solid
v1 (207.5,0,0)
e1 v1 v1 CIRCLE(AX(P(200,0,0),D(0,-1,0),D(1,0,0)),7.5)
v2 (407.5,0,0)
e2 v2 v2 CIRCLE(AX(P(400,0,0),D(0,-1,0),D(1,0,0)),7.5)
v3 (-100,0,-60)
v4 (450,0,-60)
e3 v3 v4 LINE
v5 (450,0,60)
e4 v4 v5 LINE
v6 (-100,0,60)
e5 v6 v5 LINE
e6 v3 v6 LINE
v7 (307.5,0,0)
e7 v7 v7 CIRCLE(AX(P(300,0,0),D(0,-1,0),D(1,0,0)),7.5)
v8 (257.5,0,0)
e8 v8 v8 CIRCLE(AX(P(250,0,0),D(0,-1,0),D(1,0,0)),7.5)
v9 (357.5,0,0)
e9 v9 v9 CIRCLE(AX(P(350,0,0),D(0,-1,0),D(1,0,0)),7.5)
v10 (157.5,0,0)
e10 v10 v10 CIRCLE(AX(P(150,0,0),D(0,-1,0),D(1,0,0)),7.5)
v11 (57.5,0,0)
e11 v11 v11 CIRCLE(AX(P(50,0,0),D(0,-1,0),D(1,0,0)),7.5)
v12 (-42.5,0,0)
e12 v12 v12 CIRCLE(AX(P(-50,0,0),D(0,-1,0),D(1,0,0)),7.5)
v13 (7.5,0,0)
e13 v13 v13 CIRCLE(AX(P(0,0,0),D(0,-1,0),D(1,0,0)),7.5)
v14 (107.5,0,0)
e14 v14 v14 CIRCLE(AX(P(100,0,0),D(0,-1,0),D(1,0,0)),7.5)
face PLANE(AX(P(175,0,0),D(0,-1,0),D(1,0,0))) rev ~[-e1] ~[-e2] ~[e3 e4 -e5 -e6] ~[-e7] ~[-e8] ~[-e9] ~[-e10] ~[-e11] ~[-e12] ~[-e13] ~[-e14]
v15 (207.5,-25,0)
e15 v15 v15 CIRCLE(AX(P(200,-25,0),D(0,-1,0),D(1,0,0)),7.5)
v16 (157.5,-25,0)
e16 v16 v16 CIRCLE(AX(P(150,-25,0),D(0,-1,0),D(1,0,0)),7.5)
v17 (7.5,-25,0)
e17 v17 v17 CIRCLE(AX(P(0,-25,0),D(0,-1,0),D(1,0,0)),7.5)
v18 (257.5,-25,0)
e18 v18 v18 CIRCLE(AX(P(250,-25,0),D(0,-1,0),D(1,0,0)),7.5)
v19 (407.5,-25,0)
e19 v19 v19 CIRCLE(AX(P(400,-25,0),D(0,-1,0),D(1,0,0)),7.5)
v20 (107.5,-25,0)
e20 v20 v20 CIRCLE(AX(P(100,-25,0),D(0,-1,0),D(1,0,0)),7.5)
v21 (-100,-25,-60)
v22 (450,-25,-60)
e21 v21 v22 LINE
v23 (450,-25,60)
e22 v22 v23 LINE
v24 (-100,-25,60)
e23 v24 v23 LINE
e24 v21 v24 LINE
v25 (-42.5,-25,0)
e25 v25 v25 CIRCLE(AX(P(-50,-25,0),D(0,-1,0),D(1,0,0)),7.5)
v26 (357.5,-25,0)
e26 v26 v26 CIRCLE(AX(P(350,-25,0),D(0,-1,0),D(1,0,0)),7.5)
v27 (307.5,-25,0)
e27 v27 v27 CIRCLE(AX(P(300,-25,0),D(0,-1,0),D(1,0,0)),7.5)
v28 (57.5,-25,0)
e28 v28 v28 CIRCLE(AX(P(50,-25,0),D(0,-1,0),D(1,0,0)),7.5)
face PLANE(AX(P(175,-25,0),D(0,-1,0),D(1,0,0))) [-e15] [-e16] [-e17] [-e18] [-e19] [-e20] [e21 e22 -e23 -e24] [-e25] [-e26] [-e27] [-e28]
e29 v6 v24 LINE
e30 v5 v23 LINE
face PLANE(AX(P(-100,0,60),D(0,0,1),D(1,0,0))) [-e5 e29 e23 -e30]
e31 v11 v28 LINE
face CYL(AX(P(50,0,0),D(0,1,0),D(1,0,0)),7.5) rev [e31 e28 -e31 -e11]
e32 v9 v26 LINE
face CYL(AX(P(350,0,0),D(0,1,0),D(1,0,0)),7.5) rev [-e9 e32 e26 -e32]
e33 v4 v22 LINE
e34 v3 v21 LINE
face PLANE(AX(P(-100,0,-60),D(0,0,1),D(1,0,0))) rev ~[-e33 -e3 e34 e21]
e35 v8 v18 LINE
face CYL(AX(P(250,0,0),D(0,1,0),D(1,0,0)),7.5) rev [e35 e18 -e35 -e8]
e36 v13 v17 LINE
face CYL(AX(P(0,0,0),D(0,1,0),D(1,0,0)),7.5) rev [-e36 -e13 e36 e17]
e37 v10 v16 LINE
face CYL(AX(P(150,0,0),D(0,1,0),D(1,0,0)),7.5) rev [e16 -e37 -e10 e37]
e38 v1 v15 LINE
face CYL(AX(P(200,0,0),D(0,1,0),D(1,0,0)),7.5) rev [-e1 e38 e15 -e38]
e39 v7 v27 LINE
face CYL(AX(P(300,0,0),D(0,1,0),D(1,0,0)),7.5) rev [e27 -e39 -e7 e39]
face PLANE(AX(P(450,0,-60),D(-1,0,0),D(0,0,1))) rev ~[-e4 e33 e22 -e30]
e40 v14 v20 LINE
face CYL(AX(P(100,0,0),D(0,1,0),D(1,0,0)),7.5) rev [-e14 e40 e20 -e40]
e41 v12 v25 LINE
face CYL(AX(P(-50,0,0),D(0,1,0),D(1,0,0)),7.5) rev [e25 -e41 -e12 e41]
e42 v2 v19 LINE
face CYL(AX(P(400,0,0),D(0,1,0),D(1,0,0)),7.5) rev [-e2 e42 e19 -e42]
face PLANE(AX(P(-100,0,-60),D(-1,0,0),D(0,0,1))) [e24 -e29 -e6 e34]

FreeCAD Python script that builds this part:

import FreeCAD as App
import Part
import Sketcher
Q = App.Units.Quantity


def add_polygon(sketch, points):
    """Adds a closed chain of lines whose ends are joined by coincident constraints."""
    first, n = sketch.GeometryCount, len(points)
    for a, b in zip(points, points[1:] + points[:1]):
        sketch.addGeometry(Part.LineSegment(App.Vector(*a, 0), App.Vector(*b, 0)), False)
    for i in range(n):
        sketch.addConstraint(Sketcher.Constraint("Coincident", first + i, 2, first + (i + 1) % n, 1))

doc = App.newDocument("Part")
body = doc.addObject("PartDesign::Body", "Body")

sketch1 = body.newObject("Sketcher::SketchObject", "Sketch")
sketch1.AttachmentSupport = (doc.getObject("XZ_Plane"), [""])
sketch1.MapMode = "FlatFace"
add_polygon(sketch1, [(-100, 60), (-100, -60), (450, -60), (450, 60)])
sketch1.addGeometry(Part.Circle(App.Vector(-50, 0, 0), App.Vector(0, 0, 1), 8), False)
sketch1.addGeometry(Part.Circle(App.Vector(0, 0, 0), App.Vector(0, 0, 1), 8), False)
sketch1.addGeometry(Part.Circle(App.Vector(50, 0, 0), App.Vector(0, 0, 1), 8), False)
sketch1.addGeometry(Part.Circle(App.Vector(100, 0, 0), App.Vector(0, 0, 1), 8), False)
sketch1.addGeometry(Part.Circle(App.Vector(150, 0, 0), App.Vector(0, 0, 1), 8), False)
sketch1.addGeometry(Part.Circle(App.Vector(200, 0, 0), App.Vector(0, 0, 1), 8), False)
sketch1.addGeometry(Part.Circle(App.Vector(250, 0, 0), App.Vector(0, 0, 1), 8), False)
sketch1.addGeometry(Part.Circle(App.Vector(300, 0, 0), App.Vector(0, 0, 1), 8), False)
sketch1.addGeometry(Part.Circle(App.Vector(350, 0, 0), App.Vector(0, 0, 1), 8), False)
sketch1.addGeometry(Part.Circle(App.Vector(400, 0, 0), App.Vector(0, 0, 1), 8), False)
sketch1.addConstraint([
    Sketcher.Constraint("Vertical", 0),
    Sketcher.Constraint("Horizontal", 1),
    Sketcher.Constraint("Vertical", 2),
    Sketcher.Constraint("Horizontal", 3),
    Sketcher.Constraint("Coincident", 5, 3, -1, 1),
    Sketcher.Constraint("Equal", 4, 5),
    Sketcher.Constraint("Equal", 5, 6),
    Sketcher.Constraint("Equal", 6, 7),
    Sketcher.Constraint("Equal", 7, 8),
    Sketcher.Constraint("Equal", 8, 9),
    Sketcher.Constraint("Equal", 9, 10),
    Sketcher.Constraint("Equal", 10, 11),
    Sketcher.Constraint("Equal", 11, 12),
    Sketcher.Constraint("Equal", 12, 13),
    Sketcher.Constraint("Symmetric", 4, 3, 6, 3, -1, 1),
    Sketcher.Constraint("PointOnObject", 4, 3, -1),
    Sketcher.Constraint("PointOnObject", 7, 3, -1),
    Sketcher.Constraint("PointOnObject", 8, 3, -1),
    Sketcher.Constraint("PointOnObject", 9, 3, -1),
    Sketcher.Constraint("PointOnObject", 10, 3, -1),
    Sketcher.Constraint("PointOnObject", 11, 3, -1),
    Sketcher.Constraint("PointOnObject", 12, 3, -1),
    Sketcher.Constraint("PointOnObject", 13, 3, -1),
    Sketcher.Constraint("Diameter", 4, Q("15 mm")),
    Sketcher.Constraint("DistanceX", 1, 1, 1, 2, Q("550 mm")),
    Sketcher.Constraint("DistanceY", 0, 2, 0, 1, Q("120 mm")),
    Sketcher.Constraint("DistanceX", 4, 3, -1, 1, Q("50 mm")),
    Sketcher.Constraint("DistanceX", -1, 1, 7, 3, Q("100 mm")),
    Sketcher.Constraint("DistanceX", -1, 1, 8, 3, Q("150 mm")),
    Sketcher.Constraint("DistanceX", -1, 1, 9, 3, Q("200 mm")),
    Sketcher.Constraint("DistanceX", -1, 1, 10, 3, Q("250 mm")),
    Sketcher.Constraint("DistanceX", -1, 1, 11, 3, Q("300 mm")),
    Sketcher.Constraint("DistanceX", -1, 1, 12, 3, Q("350 mm")),
    Sketcher.Constraint("DistanceX", -1, 1, 13, 3, Q("400 mm")),
    Sketcher.Constraint("DistanceX", 0, 2, -1, 1, Q("100 mm")),
    Sketcher.Constraint("DistanceY", 0, 2, -1, 1, Q("60 mm")),
])
pad1 = body.newObject("PartDesign::Pad", "Pad")
pad1.Profile = sketch1
pad1.Length = 25

doc.recompute()
